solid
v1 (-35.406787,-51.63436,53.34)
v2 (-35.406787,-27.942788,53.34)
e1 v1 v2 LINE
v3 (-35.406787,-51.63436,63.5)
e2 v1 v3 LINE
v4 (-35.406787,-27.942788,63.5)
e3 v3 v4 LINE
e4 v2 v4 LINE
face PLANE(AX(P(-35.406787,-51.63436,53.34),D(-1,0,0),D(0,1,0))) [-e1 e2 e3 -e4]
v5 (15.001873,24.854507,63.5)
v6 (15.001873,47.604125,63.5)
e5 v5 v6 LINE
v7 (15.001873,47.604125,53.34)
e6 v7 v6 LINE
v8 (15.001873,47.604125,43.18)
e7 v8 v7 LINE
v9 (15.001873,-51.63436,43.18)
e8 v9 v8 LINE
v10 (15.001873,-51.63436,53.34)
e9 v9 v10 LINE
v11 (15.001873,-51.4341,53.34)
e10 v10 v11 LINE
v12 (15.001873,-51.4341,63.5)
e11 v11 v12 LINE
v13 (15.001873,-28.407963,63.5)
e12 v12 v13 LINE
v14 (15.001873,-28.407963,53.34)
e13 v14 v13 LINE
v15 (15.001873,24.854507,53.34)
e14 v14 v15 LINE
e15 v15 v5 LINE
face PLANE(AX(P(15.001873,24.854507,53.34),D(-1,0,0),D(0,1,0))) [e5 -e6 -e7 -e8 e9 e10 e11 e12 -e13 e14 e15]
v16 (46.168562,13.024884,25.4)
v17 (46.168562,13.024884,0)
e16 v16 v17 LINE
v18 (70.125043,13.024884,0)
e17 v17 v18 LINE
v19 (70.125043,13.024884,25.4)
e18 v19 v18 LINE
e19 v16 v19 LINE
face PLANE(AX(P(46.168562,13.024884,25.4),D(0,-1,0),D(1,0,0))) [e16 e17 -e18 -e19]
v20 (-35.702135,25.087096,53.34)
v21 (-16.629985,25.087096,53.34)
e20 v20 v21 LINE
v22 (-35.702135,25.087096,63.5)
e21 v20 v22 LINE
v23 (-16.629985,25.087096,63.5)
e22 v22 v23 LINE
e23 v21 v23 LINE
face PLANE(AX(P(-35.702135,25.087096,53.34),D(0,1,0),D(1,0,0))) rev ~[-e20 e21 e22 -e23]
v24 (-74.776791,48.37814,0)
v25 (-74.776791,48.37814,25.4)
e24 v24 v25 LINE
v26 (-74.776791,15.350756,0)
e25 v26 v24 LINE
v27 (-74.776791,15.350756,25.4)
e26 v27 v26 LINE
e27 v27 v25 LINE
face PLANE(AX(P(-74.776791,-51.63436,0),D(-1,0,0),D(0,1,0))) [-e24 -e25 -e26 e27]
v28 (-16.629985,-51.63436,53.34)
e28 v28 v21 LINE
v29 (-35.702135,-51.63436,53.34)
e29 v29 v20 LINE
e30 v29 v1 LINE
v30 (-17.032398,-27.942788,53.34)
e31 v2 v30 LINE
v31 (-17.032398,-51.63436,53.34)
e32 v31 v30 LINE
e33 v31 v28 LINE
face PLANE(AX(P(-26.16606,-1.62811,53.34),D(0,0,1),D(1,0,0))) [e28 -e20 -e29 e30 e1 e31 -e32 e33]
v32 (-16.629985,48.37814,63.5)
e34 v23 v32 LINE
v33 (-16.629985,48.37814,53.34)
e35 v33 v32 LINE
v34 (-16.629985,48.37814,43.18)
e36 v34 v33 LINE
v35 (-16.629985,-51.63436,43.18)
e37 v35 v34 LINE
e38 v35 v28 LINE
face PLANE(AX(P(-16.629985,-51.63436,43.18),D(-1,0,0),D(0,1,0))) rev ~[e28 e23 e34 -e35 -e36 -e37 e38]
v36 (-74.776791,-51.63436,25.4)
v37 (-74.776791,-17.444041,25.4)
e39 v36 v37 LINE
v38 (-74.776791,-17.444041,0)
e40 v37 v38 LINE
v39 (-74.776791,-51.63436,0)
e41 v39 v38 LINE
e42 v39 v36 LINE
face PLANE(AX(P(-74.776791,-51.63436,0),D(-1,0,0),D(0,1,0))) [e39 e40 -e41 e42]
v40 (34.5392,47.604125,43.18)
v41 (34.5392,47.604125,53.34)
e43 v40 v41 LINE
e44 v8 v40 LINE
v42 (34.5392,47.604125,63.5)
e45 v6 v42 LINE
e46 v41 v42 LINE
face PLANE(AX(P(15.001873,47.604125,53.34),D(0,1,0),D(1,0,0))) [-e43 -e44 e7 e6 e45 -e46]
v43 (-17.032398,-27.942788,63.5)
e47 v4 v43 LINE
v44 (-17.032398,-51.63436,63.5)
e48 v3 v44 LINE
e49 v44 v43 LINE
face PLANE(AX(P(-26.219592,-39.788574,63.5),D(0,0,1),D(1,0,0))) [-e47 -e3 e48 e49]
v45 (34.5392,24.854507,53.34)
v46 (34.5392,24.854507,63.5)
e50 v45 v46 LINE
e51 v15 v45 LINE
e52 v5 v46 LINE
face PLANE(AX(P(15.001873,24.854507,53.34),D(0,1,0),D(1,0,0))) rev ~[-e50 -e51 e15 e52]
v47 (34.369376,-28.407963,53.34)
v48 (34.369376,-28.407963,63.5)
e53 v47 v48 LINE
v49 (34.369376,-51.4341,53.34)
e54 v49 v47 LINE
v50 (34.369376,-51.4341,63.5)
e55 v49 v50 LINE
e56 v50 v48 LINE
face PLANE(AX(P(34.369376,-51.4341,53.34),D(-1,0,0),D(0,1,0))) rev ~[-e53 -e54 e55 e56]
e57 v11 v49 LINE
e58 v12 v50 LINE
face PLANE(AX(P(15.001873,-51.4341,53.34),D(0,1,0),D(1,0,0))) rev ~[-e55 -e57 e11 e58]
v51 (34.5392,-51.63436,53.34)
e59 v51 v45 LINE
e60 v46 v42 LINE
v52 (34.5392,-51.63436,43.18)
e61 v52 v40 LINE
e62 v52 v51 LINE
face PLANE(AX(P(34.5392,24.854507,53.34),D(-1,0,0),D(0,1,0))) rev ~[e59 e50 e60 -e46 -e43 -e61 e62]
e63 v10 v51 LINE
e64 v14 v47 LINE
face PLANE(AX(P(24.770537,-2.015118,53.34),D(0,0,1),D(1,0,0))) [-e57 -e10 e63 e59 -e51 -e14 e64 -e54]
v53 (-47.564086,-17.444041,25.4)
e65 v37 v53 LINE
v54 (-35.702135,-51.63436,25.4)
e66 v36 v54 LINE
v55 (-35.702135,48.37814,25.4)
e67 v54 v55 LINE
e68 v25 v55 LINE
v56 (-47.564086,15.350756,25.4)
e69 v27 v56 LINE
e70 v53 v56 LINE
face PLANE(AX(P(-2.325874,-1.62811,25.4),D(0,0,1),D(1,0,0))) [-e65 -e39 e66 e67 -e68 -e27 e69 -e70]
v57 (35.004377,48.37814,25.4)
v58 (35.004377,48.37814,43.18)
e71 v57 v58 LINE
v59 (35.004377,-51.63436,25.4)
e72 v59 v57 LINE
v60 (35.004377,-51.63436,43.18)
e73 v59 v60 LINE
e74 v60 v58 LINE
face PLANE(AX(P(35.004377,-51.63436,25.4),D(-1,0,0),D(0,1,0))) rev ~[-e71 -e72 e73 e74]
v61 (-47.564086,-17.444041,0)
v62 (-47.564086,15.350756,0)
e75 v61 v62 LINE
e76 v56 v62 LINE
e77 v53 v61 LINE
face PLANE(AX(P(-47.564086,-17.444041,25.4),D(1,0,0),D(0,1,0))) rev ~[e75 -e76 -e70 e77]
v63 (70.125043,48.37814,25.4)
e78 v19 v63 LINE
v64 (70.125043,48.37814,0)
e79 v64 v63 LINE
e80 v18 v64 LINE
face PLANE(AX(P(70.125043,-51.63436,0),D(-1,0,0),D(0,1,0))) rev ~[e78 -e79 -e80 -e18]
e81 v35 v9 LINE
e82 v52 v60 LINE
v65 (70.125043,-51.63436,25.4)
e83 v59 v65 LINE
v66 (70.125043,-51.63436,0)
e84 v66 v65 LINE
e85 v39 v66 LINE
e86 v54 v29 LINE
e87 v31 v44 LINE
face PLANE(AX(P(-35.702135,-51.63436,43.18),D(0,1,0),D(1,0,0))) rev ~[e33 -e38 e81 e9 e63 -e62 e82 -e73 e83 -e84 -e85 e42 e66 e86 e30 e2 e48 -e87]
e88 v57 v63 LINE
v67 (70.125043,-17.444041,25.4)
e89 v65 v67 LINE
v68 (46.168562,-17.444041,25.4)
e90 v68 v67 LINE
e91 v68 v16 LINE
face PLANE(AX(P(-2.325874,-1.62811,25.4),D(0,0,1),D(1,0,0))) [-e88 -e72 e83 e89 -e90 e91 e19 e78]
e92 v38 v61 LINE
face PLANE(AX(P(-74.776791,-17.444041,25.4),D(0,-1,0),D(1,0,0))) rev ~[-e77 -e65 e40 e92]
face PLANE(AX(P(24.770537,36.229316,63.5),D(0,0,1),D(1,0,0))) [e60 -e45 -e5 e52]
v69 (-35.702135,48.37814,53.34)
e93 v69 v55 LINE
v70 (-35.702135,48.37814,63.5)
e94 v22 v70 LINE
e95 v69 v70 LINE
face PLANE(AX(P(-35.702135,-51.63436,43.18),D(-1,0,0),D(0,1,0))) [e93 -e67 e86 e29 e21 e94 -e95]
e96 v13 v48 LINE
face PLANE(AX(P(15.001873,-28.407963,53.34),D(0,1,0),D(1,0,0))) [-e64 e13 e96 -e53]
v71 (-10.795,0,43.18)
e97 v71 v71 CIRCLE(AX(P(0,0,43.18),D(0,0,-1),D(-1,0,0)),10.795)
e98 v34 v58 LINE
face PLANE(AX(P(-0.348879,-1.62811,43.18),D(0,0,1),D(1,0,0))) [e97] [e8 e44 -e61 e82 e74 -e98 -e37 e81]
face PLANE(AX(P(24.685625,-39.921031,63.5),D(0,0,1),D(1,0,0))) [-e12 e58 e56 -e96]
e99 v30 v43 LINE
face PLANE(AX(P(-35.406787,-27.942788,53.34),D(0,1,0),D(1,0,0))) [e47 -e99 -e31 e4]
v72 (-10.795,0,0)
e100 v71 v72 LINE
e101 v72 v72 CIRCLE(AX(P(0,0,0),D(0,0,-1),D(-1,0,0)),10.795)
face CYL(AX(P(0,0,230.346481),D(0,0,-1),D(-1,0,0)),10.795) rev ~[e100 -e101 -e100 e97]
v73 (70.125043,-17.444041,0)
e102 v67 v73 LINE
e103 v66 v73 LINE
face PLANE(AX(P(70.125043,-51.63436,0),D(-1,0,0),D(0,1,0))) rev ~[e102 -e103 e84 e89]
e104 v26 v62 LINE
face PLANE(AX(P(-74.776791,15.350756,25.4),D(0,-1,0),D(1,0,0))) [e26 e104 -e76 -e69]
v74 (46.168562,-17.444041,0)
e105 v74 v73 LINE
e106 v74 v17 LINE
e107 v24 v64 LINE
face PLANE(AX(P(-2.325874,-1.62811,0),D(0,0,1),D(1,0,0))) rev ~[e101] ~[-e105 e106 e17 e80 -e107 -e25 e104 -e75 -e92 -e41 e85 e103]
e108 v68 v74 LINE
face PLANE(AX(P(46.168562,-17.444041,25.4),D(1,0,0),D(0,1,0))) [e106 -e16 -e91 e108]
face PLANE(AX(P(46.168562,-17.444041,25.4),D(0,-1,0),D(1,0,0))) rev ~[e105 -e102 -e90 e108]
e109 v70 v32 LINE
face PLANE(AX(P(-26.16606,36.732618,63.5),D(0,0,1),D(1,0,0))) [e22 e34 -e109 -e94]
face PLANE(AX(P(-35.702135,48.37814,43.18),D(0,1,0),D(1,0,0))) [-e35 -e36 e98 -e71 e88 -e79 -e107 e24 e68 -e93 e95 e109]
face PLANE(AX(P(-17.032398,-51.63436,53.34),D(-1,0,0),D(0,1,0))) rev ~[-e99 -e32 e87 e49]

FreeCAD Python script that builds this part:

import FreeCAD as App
import Part
import Sketcher

V = App.Vector
Q = App.Units.Quantity


def add_polygon(sketch, points):
    """Adds a closed chain of lines whose ends are joined by coincident constraints."""
    first, n = sketch.GeometryCount, len(points)
    for a, b in zip(points, points[1:] + points[:1]):
        sketch.addGeometry(Part.LineSegment(App.Vector(*a, 0), App.Vector(*b, 0)), False)
    for i in range(n):
        sketch.addConstraint(Sketcher.Constraint("Coincident", first + i, 2, first + (i + 1) % n, 1))

doc = App.newDocument("Part")
body = doc.addObject("PartDesign::Body", "Body")

# Sketch on XY plane
sketch1 = doc.addObject("Sketcher::SketchObject", "Sketch")
body.addObject(sketch1)
sketch1.AttachmentSupport = (doc.XY_Plane, [""])
sketch1.MapMode = "FlatFace"
add_polygon(sketch1, [(-75, 48), (-75, -52), (70, -52), (70, 48)])  # lines 0-3
sketch1.addConstraint([
    Sketcher.Constraint("Vertical", 0),
    Sketcher.Constraint("Horizontal", 1),
    Sketcher.Constraint("Vertical", 2),
    Sketcher.Constraint("Horizontal", 3),
    Sketcher.Constraint("DistanceY", 0, 2, 0, 1, Q("3.9375 in")),
    Sketcher.Constraint("DistanceX", 1, 1, 1, 2, 144.901834),
    Sketcher.Constraint("DistanceX", 0, 2, -1, 1, 74.776791),
    Sketcher.Constraint("DistanceY", 0, 2, -1, 1, 51.63436),
])
pad1 = doc.addObject("PartDesign::Pad", "Pad")
body.addObject(pad1)
pad1.Profile = sketch1
pad1.Length = Q("1 in")

# Sketch on XY plane
sketch2 = doc.addObject("Sketcher::SketchObject", "Sketch001")
body.addObject(sketch2)
sketch2.AttachmentSupport = (doc.XY_Plane, [""])
sketch2.MapMode = "FlatFace"
sketch2.AttachmentOffset = App.Placement(V(0, 0, 1 * 25.4), App.Rotation())
add_polygon(sketch2, [(46, 13), (46, -17), (70, -17), (70, 13)])  # lines 0-3
sketch2.addConstraint([
    Sketcher.Constraint("Vertical", 0),
    Sketcher.Constraint("Horizontal", 1),
    Sketcher.Constraint("Vertical", 2),
    Sketcher.Constraint("Horizontal", 3),
    Sketcher.Constraint("DistanceX", 1, 1, 1, 2, 23.956481),
    Sketcher.Constraint("DistanceY", 0, 2, 0, 1, 30.468925),
    Sketcher.Constraint("DistanceY", 0, 2, -1, 1, 17.444041),
    Sketcher.Constraint("DistanceX", -1, 1, 0, 2, 46.168562),
])
pocket1 = doc.addObject("PartDesign::Pocket", "Pocket")
body.addObject(pocket1)
pocket1.Profile = sketch2
pocket1.Length = Q("1 in")

# Sketch on XY plane
sketch3 = doc.addObject("Sketcher::SketchObject", "Sketch002")
body.addObject(sketch3)
sketch3.AttachmentSupport = (doc.XY_Plane, [""])
sketch3.MapMode = "FlatFace"
sketch3.AttachmentOffset = App.Placement(V(0, 0, 1 * 25.4), App.Rotation())
add_polygon(sketch3, [(-75, 15), (-75, -17), (-48, -17), (-48, 15)])  # lines 0-3
sketch3.addConstraint([
    Sketcher.Constraint("Vertical", 0),
    Sketcher.Constraint("Horizontal", 1),
    Sketcher.Constraint("Vertical", 2),
    Sketcher.Constraint("Horizontal", 3),
    Sketcher.Constraint("DistanceX", 1, 1, 1, 2, 27.212705),
    Sketcher.Constraint("DistanceY", 0, 2, 0, 1, 32.794797),
    Sketcher.Constraint("DistanceX", 0, 2, -1, 1, 74.776791),
    Sketcher.Constraint("DistanceY", 0, 2, -1, 1, 17.444041),
])
pocket2 = doc.addObject("PartDesign::Pocket", "Pocket001")
body.addObject(pocket2)
pocket2.Profile = sketch3
pocket2.Length = Q("1 in")

# Sketch on XY plane
sketch4 = doc.addObject("Sketcher::SketchObject", "Sketch003")
body.addObject(sketch4)
sketch4.AttachmentSupport = (doc.XY_Plane, [""])
sketch4.MapMode = "FlatFace"
sketch4.AttachmentOffset = App.Placement(V(0, 0, 1 * 25.4), App.Rotation())
add_polygon(sketch4, [(-36, 48), (-36, -52), (35, -52), (35, 48)])  # lines 0-3
sketch4.addConstraint([
    Sketcher.Constraint("Vertical", 0),
    Sketcher.Constraint("Horizontal", 1),
    Sketcher.Constraint("Vertical", 2),
    Sketcher.Constraint("Horizontal", 3),
    Sketcher.Constraint("DistanceY", 0, 2, 0, 1, Q("3.9375 in")),
    Sketcher.Constraint("DistanceX", 1, 1, 1, 2, 70.706513),
    Sketcher.Constraint("DistanceY", 0, 2, -1, 1, 51.63436),
    Sketcher.Constraint("DistanceX", 0, 2, -1, 1, 35.702135),
])
pad2 = doc.addObject("PartDesign::Pad", "Pad001")
body.addObject(pad2)
pad2.Profile = sketch4
pad2.Length = Q("0.7 in")

# Sketch on XY plane
sketch5 = doc.addObject("Sketcher::SketchObject", "Sketch004")
body.addObject(sketch5)
sketch5.AttachmentSupport = (doc.XY_Plane, [""])
sketch5.MapMode = "FlatFace"
sketch5.AttachmentOffset = App.Placement(V(0, 0, 1.7 * 25.4), App.Rotation())
add_polygon(sketch5, [(15, 48), (15, -52), (35, -52), (35, 48)])  # lines 0-3
add_polygon(sketch5, [(-36, 48), (-36, -52), (-17, -52), (-17, 48)])  # lines 4-7
sketch5.addConstraint([
    Sketcher.Constraint("Vertical", 0),
    Sketcher.Constraint("Horizontal", 1),
    Sketcher.Constraint("Vertical", 2),
    Sketcher.Constraint("Horizontal", 3),
    Sketcher.Constraint("Vertical", 4),
    Sketcher.Constraint("Horizontal", 5),
    Sketcher.Constraint("Vertical", 6),
    Sketcher.Constraint("Horizontal", 7),
    Sketcher.Constraint("Horizontal", 1, 2, 4, 2),
    Sketcher.Constraint("DistanceY", 4, 2, 4, 1, Q("3.9375 in")),
    Sketcher.Constraint("DistanceX", 5, 1, 5, 2, 19.072151),
    Sketcher.Constraint("DistanceX", -1, 1, 1, 2, 34.5392),
    Sketcher.Constraint("DistanceX", 1, 1, 1, 2, 19.537327),
    Sketcher.Constraint("DistanceY", 0, 2, 0, 1, 99.238485),
    Sketcher.Constraint("DistanceY", 0, 2, -1, 1, 51.63436),
    Sketcher.Constraint("DistanceX", 4, 2, 0, 2, 50.704009),
])
pad3 = doc.addObject("PartDesign::Pad", "Pad002")
body.addObject(pad3)
pad3.Profile = sketch5
pad3.Length = Q("0.4 in")

# Sketch on XY plane
sketch6 = doc.addObject("Sketcher::SketchObject", "Sketch005")
body.addObject(sketch6)
sketch6.AttachmentSupport = (doc.XY_Plane, [""])
sketch6.MapMode = "FlatFace"
sketch6.AttachmentOffset = App.Placement(V(0, 0, 2.1 * 25.4), App.Rotation())
add_polygon(sketch6, [(15, 48), (15, 25), (35, 25), (35, 48)])  # lines 0-3
add_polygon(sketch6, [(-36, 48), (-36, 25), (-17, 25), (-17, 48)])  # lines 4-7
sketch6.addConstraint([
    Sketcher.Constraint("Vertical", 0),
    Sketcher.Constraint("Horizontal", 1),
    Sketcher.Constraint("Vertical", 2),
    Sketcher.Constraint("Horizontal", 3),
    Sketcher.Constraint("Vertical", 4),
    Sketcher.Constraint("Horizontal", 5),
    Sketcher.Constraint("Vertical", 6),
    Sketcher.Constraint("Horizontal", 7),
    Sketcher.Constraint("DistanceX", 5, 1, 5, 2, 19.072151),
    Sketcher.Constraint("DistanceX", -1, 1, 1, 2, 34.5392),
    Sketcher.Constraint("DistanceX", 1, 1, 1, 2, 19.537327),
    Sketcher.Constraint("DistanceY", 0, 2, 0, 1, 22.749618),
    Sketcher.Constraint("DistanceY", 4, 2, 4, 1, 23.291044),
    Sketcher.Constraint("DistanceY", -1, 1, 6, 2, 48.37814),
    Sketcher.Constraint("DistanceX", 4, 2, 0, 2, 50.704009),
    Sketcher.Constraint("DistanceY", 0, 2, 4, 2, 0.232588),
])
pad4 = doc.addObject("PartDesign::Pad", "Pad003")
body.addObject(pad4)
pad4.Profile = sketch6
pad4.Length = Q("0.4 in")

# Sketch on XY plane
sketch7 = doc.addObject("Sketcher::SketchObject", "Sketch006")
body.addObject(sketch7)
sketch7.AttachmentSupport = (doc.XY_Plane, [""])
sketch7.MapMode = "FlatFace"
sketch7.AttachmentOffset = App.Placement(V(0, 0, 2.1 * 25.4), App.Rotation())
add_polygon(sketch7, [(-35, -28), (-35, -52), (-17, -52), (-17, -28)])  # lines 0-3
add_polygon(sketch7, [(15, -28), (15, -51), (34, -51), (34, -28)])  # lines 4-7
sketch7.addConstraint([
    Sketcher.Constraint("Vertical", 0),
    Sketcher.Constraint("Horizontal", 1),
    Sketcher.Constraint("Vertical", 2),
    Sketcher.Constraint("Horizontal", 3),
    Sketcher.Constraint("Vertical", 4),
    Sketcher.Constraint("Horizontal", 5),
    Sketcher.Constraint("Vertical", 6),
    Sketcher.Constraint("Horizontal", 7),
    Sketcher.Constraint("DistanceX", 5, 1, 5, 2, Q("0.7625001 in")),
    Sketcher.Constraint("DistanceX", 1, 1, 1, 2, 18.374389),
    Sketcher.Constraint("DistanceY", 4, 2, -1, 1, 51.4341),
    Sketcher.Constraint("DistanceY", 0, 2, 0, 1, 23.691572),
    Sketcher.Constraint("DistanceY", 4, 2, 4, 1, 23.026137),
    Sketcher.Constraint("DistanceY", 0, 2, -1, 1, 51.63436),
    Sketcher.Constraint("DistanceX", 1, 2, 4, 2, 32.034271),
    Sketcher.Constraint("DistanceX", 0, 2, -1, 1, 35.406787),
])
pad5 = doc.addObject("PartDesign::Pad", "Pad004")
body.addObject(pad5)
pad5.Profile = sketch7
pad5.Length = Q("0.4 in")

# Sketch on XY plane
sketch8 = doc.addObject("Sketcher::SketchObject", "Sketch007")
body.addObject(sketch8)
sketch8.AttachmentSupport = (doc.XY_Plane, [""])
sketch8.MapMode = "FlatFace"
sketch8.AttachmentOffset = App.Placement(V(0, 0, 1.7 * 25.4), App.Rotation())
sketch8.addGeometry(Part.Circle(V(0, 0, 0), V(0, 0, 1), 11), False)
sketch8.addConstraint([
    Sketcher.Constraint("Coincident", 0, 3, -1, 1),
    Sketcher.Constraint("Diameter", 0, Q("0.85 in")),
])
doc.recompute()
hole = doc.addObject("PartDesign::Hole", "Hole")
body.addObject(hole)
hole.Profile = sketch8
hole.ThreadType = "None"
hole.Diameter = Q("0.85 in")
hole.DepthType = "ThroughAll"

doc.recompute()
